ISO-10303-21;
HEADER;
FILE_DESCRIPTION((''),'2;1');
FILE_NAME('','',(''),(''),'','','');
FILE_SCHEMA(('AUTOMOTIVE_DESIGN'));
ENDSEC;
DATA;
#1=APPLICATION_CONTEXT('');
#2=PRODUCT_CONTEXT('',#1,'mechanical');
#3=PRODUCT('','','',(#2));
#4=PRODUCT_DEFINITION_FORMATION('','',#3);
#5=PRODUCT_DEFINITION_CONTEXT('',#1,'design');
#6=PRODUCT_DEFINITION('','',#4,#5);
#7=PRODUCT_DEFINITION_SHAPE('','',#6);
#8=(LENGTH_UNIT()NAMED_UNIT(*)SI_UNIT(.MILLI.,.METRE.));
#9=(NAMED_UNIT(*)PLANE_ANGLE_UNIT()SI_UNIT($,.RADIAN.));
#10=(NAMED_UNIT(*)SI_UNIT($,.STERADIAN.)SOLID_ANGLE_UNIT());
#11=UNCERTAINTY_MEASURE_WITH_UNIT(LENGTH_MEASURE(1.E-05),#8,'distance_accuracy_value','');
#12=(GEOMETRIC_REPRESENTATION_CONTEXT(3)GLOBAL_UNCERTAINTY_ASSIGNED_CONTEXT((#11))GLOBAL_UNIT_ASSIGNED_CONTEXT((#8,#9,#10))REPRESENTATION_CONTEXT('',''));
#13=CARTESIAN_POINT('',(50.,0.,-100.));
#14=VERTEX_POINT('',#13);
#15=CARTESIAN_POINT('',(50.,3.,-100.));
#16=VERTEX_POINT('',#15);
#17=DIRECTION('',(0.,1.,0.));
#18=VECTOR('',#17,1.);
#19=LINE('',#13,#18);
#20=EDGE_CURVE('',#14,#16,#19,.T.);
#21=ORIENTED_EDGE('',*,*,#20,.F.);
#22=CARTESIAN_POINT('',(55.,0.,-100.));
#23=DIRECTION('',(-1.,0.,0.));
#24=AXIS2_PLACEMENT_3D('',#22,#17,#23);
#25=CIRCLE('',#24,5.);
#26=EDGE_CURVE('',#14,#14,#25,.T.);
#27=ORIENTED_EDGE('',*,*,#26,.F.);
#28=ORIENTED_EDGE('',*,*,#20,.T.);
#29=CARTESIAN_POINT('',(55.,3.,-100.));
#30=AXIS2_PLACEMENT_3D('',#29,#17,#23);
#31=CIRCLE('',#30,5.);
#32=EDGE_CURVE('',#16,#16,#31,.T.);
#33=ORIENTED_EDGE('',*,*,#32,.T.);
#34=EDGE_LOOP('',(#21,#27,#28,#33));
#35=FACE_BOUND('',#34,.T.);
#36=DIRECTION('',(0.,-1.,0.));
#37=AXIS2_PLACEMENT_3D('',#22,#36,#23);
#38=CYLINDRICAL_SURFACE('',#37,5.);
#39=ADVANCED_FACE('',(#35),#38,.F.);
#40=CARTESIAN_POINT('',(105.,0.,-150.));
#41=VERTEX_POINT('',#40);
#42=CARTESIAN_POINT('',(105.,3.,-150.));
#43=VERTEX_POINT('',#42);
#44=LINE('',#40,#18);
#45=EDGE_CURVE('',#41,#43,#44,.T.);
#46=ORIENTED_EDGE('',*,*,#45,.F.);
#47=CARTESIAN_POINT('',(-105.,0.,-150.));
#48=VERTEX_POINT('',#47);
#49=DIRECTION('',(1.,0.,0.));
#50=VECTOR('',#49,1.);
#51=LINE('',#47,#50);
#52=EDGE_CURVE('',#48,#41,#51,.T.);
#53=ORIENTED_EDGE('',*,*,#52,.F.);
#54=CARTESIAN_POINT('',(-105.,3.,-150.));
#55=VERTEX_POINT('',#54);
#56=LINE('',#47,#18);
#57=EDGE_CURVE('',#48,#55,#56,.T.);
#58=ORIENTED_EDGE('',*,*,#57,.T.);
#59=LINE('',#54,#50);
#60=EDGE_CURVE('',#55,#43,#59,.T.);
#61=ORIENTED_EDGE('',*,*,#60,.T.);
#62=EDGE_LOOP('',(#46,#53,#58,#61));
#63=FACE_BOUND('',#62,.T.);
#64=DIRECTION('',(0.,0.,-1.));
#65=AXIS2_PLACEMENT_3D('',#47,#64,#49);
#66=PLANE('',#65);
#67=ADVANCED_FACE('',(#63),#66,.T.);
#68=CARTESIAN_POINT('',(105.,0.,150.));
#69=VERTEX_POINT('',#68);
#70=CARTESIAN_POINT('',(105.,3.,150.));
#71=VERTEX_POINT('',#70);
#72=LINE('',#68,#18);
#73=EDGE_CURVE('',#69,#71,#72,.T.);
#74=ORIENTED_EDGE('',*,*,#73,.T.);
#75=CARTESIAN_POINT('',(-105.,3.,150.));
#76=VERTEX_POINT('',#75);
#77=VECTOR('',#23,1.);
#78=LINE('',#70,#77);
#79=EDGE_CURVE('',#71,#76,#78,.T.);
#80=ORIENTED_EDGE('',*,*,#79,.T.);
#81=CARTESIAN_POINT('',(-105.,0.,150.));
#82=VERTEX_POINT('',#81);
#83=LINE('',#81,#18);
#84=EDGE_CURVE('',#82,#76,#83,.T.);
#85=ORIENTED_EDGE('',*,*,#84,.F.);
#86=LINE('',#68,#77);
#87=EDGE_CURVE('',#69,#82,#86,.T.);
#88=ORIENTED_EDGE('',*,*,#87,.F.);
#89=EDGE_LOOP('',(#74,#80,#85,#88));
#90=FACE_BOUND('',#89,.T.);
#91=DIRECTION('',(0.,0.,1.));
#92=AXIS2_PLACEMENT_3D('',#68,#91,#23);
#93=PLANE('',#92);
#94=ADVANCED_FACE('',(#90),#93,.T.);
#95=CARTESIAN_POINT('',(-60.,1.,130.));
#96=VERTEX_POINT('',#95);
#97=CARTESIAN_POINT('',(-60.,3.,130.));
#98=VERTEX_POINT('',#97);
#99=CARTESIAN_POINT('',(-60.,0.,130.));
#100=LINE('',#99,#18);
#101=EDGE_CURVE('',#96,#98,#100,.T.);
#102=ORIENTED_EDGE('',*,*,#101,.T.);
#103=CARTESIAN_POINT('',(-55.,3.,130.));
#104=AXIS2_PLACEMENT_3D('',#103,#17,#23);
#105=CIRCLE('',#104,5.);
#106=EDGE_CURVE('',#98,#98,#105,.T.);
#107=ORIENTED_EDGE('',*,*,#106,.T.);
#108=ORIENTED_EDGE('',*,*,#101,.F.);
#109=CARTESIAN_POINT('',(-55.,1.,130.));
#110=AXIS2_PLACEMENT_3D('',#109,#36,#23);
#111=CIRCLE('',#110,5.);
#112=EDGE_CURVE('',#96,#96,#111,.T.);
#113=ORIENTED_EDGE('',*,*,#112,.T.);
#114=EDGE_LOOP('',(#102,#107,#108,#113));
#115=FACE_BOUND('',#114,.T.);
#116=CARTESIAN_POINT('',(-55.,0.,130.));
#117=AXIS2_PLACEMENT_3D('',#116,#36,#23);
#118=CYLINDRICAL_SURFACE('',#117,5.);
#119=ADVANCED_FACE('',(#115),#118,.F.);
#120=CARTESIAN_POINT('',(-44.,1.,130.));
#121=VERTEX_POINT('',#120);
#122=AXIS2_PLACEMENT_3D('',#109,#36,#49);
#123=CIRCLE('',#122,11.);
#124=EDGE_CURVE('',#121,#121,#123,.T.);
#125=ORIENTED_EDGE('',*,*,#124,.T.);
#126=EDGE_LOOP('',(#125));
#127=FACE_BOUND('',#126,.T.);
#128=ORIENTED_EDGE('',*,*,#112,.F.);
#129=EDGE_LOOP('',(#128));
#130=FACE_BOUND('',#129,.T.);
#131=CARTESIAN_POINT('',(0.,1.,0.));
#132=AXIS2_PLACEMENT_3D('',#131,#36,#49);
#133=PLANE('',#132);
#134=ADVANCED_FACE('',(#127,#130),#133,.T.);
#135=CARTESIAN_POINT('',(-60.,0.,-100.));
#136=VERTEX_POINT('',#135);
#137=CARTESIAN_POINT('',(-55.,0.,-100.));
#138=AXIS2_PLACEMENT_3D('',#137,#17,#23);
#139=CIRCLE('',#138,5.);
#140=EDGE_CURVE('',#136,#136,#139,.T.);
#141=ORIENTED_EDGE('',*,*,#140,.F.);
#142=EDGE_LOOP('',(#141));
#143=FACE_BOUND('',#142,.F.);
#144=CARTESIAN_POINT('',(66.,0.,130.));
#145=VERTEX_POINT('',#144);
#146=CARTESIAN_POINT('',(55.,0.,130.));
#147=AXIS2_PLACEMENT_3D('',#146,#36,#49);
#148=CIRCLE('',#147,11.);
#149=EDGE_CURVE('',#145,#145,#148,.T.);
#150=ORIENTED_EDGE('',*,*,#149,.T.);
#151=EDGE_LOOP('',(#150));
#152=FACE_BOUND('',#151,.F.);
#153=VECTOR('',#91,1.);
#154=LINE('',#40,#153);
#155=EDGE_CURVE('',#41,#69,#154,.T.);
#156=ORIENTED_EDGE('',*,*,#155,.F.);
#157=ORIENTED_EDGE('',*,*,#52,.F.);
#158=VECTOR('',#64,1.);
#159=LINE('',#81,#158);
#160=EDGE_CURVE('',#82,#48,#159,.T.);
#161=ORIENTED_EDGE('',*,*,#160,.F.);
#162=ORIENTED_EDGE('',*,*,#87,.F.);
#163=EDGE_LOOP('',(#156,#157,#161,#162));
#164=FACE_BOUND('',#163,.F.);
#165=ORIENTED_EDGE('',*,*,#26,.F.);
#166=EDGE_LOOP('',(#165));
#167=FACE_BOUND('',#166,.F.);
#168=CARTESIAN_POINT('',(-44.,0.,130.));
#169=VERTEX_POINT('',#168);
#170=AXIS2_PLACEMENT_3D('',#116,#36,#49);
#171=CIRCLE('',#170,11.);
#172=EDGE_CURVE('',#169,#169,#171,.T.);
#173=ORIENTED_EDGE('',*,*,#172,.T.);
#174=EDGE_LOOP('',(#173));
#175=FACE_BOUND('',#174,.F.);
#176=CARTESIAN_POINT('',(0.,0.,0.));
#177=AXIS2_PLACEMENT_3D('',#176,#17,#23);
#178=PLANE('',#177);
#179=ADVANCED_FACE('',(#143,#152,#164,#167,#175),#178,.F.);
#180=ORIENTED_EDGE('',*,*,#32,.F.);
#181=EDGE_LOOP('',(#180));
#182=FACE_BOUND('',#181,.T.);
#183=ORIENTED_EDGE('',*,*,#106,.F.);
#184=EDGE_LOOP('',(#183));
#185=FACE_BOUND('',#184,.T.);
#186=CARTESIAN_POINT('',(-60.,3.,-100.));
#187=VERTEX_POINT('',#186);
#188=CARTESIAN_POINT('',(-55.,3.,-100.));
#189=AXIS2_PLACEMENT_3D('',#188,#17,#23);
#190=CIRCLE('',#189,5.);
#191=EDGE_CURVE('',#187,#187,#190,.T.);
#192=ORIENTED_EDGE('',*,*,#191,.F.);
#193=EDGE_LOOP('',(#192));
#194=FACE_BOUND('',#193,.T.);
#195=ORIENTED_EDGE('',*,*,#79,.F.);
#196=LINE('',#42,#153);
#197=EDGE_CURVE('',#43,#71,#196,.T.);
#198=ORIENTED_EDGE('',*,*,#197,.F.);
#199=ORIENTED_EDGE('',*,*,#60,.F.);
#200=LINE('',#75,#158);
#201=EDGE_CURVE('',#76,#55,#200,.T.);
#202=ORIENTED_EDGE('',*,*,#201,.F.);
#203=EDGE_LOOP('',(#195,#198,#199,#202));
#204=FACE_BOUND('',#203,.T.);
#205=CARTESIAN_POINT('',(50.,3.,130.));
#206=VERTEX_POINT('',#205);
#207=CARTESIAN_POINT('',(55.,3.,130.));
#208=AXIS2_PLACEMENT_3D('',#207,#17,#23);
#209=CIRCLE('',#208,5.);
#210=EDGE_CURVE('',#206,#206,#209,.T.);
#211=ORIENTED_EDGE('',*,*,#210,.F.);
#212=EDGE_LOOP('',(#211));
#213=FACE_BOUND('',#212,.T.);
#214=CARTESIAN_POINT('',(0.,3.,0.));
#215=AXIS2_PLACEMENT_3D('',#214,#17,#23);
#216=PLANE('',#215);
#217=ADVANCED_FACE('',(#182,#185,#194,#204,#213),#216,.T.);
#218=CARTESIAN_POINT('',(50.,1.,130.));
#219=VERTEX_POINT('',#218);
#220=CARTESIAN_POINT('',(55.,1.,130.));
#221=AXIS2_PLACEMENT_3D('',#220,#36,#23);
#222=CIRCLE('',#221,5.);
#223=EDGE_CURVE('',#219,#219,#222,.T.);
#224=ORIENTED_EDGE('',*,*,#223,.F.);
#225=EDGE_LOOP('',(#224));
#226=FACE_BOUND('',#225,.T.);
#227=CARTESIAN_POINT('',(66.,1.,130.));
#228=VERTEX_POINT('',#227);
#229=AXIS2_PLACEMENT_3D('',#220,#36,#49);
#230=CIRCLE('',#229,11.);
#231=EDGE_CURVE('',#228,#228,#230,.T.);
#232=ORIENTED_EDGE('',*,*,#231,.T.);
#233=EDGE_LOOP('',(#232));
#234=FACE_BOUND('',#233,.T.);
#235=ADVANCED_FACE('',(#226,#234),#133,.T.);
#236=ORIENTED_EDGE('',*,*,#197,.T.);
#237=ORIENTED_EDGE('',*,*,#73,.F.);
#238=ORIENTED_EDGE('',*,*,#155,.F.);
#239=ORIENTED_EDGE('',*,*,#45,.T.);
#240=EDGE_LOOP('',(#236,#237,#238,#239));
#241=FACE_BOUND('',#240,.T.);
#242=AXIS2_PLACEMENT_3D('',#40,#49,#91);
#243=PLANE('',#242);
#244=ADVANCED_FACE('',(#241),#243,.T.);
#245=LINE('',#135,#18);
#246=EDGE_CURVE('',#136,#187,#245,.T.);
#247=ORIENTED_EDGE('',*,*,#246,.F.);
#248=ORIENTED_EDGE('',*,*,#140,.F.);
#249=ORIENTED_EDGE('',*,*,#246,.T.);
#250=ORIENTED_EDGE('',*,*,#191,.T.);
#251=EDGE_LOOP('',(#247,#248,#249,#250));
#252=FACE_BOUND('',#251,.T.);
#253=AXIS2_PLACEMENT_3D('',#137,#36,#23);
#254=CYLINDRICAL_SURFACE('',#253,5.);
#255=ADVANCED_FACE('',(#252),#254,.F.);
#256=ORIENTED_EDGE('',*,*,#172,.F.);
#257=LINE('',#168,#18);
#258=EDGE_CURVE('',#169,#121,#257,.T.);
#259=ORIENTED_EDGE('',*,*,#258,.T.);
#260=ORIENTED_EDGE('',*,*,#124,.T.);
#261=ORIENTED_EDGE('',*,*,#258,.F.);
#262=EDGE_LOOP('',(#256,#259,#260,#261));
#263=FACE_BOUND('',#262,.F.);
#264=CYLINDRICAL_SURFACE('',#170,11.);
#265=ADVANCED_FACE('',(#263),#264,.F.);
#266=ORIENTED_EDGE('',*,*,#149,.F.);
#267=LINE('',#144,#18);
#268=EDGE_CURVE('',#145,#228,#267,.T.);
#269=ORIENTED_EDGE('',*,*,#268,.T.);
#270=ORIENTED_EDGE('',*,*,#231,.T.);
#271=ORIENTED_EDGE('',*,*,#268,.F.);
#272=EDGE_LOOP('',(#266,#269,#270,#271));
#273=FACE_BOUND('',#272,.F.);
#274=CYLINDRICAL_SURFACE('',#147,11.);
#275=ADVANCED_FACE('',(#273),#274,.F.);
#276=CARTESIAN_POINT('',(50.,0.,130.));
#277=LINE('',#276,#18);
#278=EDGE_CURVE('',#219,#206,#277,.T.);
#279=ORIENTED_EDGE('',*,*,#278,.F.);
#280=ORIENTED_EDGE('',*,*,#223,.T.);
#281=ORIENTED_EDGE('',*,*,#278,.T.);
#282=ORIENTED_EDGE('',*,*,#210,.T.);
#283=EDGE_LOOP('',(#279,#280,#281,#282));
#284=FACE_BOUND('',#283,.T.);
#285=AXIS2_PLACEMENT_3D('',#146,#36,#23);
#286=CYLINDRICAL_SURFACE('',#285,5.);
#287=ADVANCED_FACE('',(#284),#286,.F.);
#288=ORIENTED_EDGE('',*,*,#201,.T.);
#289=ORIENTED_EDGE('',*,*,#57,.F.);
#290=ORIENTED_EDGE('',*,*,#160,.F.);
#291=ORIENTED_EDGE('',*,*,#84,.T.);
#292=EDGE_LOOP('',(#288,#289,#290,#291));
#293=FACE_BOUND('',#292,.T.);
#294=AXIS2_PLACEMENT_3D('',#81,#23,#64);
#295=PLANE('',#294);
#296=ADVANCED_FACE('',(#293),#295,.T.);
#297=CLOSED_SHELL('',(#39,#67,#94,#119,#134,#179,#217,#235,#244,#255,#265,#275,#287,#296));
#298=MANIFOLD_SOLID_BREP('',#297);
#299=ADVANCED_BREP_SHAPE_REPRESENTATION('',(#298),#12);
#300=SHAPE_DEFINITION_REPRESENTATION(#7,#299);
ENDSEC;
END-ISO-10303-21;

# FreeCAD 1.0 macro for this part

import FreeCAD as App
import Part
import Sketcher
from FreeCAD import Vector

doc = App.newDocument("Part")
body = doc.addObject("PartDesign::Body", "Body")

# Sketch on XZ plane
sketch1 = doc.addObject("Sketcher::SketchObject", "Sketch")
body.addObject(sketch1)
sketch1.AttachmentSupport = (doc.XZ_Plane, [""])
sketch1.MapMode = "FlatFace"
sketch1.addGeometry([
    Part.LineSegment(Vector(-105, 150, 0), Vector(105, 150, 0)),  # 0
    Part.LineSegment(Vector(105, 150, 0), Vector(105, -150, 0)),  # 1
    Part.LineSegment(Vector(105, -150, 0), Vector(-105, -150, 0)),  # 2
    Part.LineSegment(Vector(-105, -150, 0), Vector(-105, 150, 0)),  # 3
    Part.Circle(Vector(55, -100, 0), Vector(0, 0, 1), 5),  # 4
    Part.Circle(Vector(-55, -100, 0), Vector(0, 0, 1), 5),  # 5
    Part.Circle(Vector(55, 130, 0), Vector(0, 0, 1), 5),  # 6
    Part.Circle(Vector(-55, 130, 0), Vector(0, 0, 1), 5),  # 7
], False)
sketch1.addConstraint([
    Sketcher.Constraint("Coincident", 0, 2, 1, 1),
    Sketcher.Constraint("Coincident", 1, 2, 2, 1),
    Sketcher.Constraint("Coincident", 2, 2, 3, 1),
    Sketcher.Constraint("Coincident", 3, 2, 0, 1),
    Sketcher.Constraint("Horizontal", 0),
    Sketcher.Constraint("Vertical", 1),
    Sketcher.Constraint("Horizontal", 2),
    Sketcher.Constraint("Vertical", 3),
    Sketcher.Constraint("Equal", 4, 5),
    Sketcher.Constraint("Equal", 5, 6),
    Sketcher.Constraint("Equal", 6, 7),
    Sketcher.Constraint("Symmetric", 0, 2, 2, 2, -1, 1),
    Sketcher.Constraint("Symmetric", 4, 3, 5, 3, -2),
    Sketcher.Constraint("Symmetric", 6, 3, 7, 3, -2),
    Sketcher.Constraint("Vertical", 4, 3, 6, 3),
    Sketcher.Constraint("Diameter", 4, 10.0),
    Sketcher.Constraint("DistanceX", 0, 1, 0, 2, 210.0),
    Sketcher.Constraint("DistanceY", 1, 2, 1, 1, 300.0),
    Sketcher.Constraint("DistanceX", 6, 3, 0, 2, 50.0),
    Sketcher.Constraint("DistanceY", 6, 3, 0, 2, 20.0),
    Sketcher.Constraint("DistanceY", 1, 2, 4, 3, 50.0),
])
pad1 = doc.addObject("PartDesign::Pad", "Pad")
body.addObject(pad1)
pad1.Profile = sketch1
pad1.Length = 3
pad1.Reversed = True

# Sketch on XZ plane
sketch2 = doc.addObject("Sketcher::SketchObject", "Sketch001")
body.addObject(sketch2)
sketch2.AttachmentSupport = (doc.XZ_Plane, [""])
sketch2.MapMode = "FlatFace"
sketch2.addGeometry([
    Part.Circle(Vector(-55, 130, 0), Vector(0, 0, 1), 11),
    Part.Circle(Vector(-55, 130, 0), Vector(0, 0, 1), 5),
    Part.Circle(Vector(55, 130, 0), Vector(0, 0, 1), 11),
    Part.Circle(Vector(55, 130, 0), Vector(0, 0, 1), 5),
], False)
sketch2.addConstraint([
    Sketcher.Constraint("Coincident", 1, 3, 0, 3),
    Sketcher.Constraint("Coincident", 3, 3, 2, 3),
    Sketcher.Constraint("Equal", 0, 2),
    Sketcher.Constraint("Equal", 1, 3),
    Sketcher.Constraint("Symmetric", 0, 3, 2, 3, -2),
    Sketcher.Constraint("Diameter", 0, 22.0),
    Sketcher.Constraint("Diameter", 1, 10.0),
    Sketcher.Constraint("DistanceX", 0, 3, -1, 1, 55.0),
    Sketcher.Constraint("DistanceY", -1, 1, 0, 3, 130.0),
])
pocket1 = doc.addObject("PartDesign::Pocket", "Pocket")
body.addObject(pocket1)
pocket1.Profile = sketch2
pocket1.Length = 1

doc.recompute()
